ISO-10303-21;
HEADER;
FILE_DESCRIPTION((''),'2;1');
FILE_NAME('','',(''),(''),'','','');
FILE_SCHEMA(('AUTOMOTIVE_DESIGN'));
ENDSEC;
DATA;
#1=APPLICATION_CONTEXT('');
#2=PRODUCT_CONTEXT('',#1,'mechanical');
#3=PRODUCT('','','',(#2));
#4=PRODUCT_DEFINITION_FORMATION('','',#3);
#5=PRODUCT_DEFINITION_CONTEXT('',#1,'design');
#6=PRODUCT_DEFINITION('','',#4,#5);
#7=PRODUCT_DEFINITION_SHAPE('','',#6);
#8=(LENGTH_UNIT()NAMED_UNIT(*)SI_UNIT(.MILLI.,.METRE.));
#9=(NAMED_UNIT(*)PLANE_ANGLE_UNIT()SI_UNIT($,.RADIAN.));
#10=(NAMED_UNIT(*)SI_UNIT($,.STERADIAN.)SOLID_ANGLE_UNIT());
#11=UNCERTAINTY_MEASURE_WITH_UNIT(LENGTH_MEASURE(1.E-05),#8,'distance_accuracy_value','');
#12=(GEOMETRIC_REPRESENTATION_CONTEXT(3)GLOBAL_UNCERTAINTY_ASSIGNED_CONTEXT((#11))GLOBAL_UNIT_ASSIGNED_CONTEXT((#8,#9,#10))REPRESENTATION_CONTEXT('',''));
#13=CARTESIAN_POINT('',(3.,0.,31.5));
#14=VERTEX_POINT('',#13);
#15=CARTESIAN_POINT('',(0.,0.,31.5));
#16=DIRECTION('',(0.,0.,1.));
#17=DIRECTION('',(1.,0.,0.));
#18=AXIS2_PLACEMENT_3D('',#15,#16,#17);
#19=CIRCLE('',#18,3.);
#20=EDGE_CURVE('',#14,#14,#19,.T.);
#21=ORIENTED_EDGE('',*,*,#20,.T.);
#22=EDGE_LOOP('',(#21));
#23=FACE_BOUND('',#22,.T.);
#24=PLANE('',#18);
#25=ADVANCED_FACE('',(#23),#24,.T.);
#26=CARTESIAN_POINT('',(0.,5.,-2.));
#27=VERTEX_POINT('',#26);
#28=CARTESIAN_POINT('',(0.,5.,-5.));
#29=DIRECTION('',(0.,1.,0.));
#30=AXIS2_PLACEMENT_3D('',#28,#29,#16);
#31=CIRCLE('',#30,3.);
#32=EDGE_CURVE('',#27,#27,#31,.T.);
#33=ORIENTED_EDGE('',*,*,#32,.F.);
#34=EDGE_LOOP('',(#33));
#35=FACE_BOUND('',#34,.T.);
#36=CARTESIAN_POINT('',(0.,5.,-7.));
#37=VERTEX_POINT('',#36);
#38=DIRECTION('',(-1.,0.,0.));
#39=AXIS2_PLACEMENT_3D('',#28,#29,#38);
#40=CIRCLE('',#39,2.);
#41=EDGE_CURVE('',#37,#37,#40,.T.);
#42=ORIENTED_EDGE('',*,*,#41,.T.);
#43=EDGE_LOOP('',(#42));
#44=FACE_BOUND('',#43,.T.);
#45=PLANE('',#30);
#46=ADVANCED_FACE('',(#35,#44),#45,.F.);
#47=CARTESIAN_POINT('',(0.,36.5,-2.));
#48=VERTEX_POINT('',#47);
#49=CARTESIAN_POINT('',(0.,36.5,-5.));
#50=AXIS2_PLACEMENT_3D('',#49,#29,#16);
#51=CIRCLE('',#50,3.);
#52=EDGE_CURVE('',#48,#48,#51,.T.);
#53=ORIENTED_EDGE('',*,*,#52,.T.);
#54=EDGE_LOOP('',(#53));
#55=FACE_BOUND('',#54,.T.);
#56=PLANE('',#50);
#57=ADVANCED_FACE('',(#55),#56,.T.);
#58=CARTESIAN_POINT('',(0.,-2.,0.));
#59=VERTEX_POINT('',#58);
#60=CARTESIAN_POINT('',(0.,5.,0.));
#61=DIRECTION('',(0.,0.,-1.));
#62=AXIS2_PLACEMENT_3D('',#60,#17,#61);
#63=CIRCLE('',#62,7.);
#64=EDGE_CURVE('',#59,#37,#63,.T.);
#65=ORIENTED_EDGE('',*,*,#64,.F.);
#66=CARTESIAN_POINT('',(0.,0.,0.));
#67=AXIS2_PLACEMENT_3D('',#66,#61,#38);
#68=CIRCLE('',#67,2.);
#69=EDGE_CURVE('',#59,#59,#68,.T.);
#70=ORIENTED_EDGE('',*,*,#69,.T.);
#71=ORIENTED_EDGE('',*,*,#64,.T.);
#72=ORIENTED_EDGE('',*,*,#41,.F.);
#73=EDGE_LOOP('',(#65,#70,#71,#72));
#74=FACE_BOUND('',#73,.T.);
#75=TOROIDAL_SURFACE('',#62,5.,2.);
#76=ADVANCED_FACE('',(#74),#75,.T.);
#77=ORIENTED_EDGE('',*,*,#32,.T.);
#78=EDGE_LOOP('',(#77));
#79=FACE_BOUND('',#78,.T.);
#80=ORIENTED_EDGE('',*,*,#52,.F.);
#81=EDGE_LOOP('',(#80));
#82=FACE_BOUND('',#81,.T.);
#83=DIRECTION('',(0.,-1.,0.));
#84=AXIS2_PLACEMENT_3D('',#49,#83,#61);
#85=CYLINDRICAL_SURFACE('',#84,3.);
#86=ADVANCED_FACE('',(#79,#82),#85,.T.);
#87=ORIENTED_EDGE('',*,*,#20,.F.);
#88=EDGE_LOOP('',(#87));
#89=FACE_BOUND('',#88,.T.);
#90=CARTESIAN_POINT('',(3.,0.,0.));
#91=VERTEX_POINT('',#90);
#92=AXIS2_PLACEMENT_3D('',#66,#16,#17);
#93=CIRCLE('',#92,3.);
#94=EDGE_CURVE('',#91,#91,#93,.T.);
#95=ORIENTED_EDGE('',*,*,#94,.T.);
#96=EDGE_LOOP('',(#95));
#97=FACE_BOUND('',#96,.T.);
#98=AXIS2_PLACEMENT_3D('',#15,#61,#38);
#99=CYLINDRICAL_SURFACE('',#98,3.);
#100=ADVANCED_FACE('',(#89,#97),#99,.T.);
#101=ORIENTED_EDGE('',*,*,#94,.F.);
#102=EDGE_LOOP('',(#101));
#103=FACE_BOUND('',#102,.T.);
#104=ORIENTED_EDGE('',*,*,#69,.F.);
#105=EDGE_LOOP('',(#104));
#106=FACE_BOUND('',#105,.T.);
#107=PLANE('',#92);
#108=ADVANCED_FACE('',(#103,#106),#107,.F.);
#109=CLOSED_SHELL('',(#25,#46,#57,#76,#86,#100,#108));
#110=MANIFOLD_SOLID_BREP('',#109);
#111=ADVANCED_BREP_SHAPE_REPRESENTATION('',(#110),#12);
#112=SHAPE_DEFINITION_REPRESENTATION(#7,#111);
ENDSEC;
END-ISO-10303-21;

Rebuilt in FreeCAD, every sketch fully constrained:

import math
import FreeCAD as App
import Part
import Sketcher

doc = App.newDocument("Part")
body = doc.addObject("PartDesign::Body", "Body")

sketch1 = body.newObject("Sketcher::SketchObject", "Sketch")
sketch1.AttachmentSupport = (doc.getObject("XY_Plane"), [""])
sketch1.MapMode = "FlatFace"
sketch1.addGeometry(Part.Circle(App.Vector(0, 0, 0), App.Vector(0, 0, 1), 3), False)
sketch1.addConstraint(Sketcher.Constraint("Coincident", 0, 3, -1, 1))
sketch1.addConstraint(Sketcher.Constraint("Diameter", 0, 6.0))
pad1 = body.newObject("PartDesign::Pad", "Pad")
pad1.Profile = sketch1
pad1.Length = 31.5

sketch2 = body.newObject("Sketcher::SketchObject", "Sketch001")
sketch2.AttachmentSupport = (doc.getObject("XY_Plane"), [""])
sketch2.MapMode = "FlatFace"
sketch2.addGeometry(Part.Circle(App.Vector(0, 0, 0), App.Vector(0, 0, 1), 2), False)
sketch2.addConstraint(Sketcher.Constraint("Coincident", 0, 3, -1, 1))
sketch2.addConstraint(Sketcher.Constraint("Diameter", 0, 4.0))

sketch3 = body.newObject("Sketcher::SketchObject", "Sketch002")
sketch3.AttachmentSupport = (doc.getObject("YZ_Plane"), [""])
sketch3.MapMode = "FlatFace"
sketch3.addGeometry(Part.ArcOfCircle(Part.Circle(App.Vector(5, 0, 0), App.Vector(0, 0, 1), 5), math.radians(180), math.radians(270)), False)
sketch3.addConstraint(Sketcher.Constraint("Coincident", 0, 1, -1, 1))
sketch3.addConstraint(Sketcher.Constraint("PointOnObject", 0, 3, -1))
sketch3.addConstraint(Sketcher.Constraint("Radius", 0, 5.0))
sketch3.addConstraint(Sketcher.Constraint("DistanceX", -1, 1, 0, 2, 5.0))
doc.recompute()

additivepipe = body.newObject("PartDesign::AdditivePipe", "AdditivePipe")
additivepipe.Profile = sketch2
additivepipe.Spine = (sketch3, ["Edge1"])

sketch4 = body.newObject("Sketcher::SketchObject", "Sketch003")
sketch4.AttachmentSupport = (doc.getObject("XZ_Plane"), [""])
sketch4.MapMode = "FlatFace"
sketch4.AttachmentOffset = App.Placement(App.Vector(0, 0, -5), App.Rotation())
sketch4.addGeometry(Part.Circle(App.Vector(0, -5, 0), App.Vector(0, 0, 1), 3), False)
sketch4.addConstraint(Sketcher.Constraint("PointOnObject", 0, 3, -2))
sketch4.addConstraint(Sketcher.Constraint("Diameter", 0, 6.0))
sketch4.addConstraint(Sketcher.Constraint("DistanceY", 0, 3, -1, 1, 5.0))
pad2 = body.newObject("PartDesign::Pad", "Pad001")
pad2.Profile = sketch4
pad2.Length = 31.5
pad2.Reversed = True

doc.recompute()
